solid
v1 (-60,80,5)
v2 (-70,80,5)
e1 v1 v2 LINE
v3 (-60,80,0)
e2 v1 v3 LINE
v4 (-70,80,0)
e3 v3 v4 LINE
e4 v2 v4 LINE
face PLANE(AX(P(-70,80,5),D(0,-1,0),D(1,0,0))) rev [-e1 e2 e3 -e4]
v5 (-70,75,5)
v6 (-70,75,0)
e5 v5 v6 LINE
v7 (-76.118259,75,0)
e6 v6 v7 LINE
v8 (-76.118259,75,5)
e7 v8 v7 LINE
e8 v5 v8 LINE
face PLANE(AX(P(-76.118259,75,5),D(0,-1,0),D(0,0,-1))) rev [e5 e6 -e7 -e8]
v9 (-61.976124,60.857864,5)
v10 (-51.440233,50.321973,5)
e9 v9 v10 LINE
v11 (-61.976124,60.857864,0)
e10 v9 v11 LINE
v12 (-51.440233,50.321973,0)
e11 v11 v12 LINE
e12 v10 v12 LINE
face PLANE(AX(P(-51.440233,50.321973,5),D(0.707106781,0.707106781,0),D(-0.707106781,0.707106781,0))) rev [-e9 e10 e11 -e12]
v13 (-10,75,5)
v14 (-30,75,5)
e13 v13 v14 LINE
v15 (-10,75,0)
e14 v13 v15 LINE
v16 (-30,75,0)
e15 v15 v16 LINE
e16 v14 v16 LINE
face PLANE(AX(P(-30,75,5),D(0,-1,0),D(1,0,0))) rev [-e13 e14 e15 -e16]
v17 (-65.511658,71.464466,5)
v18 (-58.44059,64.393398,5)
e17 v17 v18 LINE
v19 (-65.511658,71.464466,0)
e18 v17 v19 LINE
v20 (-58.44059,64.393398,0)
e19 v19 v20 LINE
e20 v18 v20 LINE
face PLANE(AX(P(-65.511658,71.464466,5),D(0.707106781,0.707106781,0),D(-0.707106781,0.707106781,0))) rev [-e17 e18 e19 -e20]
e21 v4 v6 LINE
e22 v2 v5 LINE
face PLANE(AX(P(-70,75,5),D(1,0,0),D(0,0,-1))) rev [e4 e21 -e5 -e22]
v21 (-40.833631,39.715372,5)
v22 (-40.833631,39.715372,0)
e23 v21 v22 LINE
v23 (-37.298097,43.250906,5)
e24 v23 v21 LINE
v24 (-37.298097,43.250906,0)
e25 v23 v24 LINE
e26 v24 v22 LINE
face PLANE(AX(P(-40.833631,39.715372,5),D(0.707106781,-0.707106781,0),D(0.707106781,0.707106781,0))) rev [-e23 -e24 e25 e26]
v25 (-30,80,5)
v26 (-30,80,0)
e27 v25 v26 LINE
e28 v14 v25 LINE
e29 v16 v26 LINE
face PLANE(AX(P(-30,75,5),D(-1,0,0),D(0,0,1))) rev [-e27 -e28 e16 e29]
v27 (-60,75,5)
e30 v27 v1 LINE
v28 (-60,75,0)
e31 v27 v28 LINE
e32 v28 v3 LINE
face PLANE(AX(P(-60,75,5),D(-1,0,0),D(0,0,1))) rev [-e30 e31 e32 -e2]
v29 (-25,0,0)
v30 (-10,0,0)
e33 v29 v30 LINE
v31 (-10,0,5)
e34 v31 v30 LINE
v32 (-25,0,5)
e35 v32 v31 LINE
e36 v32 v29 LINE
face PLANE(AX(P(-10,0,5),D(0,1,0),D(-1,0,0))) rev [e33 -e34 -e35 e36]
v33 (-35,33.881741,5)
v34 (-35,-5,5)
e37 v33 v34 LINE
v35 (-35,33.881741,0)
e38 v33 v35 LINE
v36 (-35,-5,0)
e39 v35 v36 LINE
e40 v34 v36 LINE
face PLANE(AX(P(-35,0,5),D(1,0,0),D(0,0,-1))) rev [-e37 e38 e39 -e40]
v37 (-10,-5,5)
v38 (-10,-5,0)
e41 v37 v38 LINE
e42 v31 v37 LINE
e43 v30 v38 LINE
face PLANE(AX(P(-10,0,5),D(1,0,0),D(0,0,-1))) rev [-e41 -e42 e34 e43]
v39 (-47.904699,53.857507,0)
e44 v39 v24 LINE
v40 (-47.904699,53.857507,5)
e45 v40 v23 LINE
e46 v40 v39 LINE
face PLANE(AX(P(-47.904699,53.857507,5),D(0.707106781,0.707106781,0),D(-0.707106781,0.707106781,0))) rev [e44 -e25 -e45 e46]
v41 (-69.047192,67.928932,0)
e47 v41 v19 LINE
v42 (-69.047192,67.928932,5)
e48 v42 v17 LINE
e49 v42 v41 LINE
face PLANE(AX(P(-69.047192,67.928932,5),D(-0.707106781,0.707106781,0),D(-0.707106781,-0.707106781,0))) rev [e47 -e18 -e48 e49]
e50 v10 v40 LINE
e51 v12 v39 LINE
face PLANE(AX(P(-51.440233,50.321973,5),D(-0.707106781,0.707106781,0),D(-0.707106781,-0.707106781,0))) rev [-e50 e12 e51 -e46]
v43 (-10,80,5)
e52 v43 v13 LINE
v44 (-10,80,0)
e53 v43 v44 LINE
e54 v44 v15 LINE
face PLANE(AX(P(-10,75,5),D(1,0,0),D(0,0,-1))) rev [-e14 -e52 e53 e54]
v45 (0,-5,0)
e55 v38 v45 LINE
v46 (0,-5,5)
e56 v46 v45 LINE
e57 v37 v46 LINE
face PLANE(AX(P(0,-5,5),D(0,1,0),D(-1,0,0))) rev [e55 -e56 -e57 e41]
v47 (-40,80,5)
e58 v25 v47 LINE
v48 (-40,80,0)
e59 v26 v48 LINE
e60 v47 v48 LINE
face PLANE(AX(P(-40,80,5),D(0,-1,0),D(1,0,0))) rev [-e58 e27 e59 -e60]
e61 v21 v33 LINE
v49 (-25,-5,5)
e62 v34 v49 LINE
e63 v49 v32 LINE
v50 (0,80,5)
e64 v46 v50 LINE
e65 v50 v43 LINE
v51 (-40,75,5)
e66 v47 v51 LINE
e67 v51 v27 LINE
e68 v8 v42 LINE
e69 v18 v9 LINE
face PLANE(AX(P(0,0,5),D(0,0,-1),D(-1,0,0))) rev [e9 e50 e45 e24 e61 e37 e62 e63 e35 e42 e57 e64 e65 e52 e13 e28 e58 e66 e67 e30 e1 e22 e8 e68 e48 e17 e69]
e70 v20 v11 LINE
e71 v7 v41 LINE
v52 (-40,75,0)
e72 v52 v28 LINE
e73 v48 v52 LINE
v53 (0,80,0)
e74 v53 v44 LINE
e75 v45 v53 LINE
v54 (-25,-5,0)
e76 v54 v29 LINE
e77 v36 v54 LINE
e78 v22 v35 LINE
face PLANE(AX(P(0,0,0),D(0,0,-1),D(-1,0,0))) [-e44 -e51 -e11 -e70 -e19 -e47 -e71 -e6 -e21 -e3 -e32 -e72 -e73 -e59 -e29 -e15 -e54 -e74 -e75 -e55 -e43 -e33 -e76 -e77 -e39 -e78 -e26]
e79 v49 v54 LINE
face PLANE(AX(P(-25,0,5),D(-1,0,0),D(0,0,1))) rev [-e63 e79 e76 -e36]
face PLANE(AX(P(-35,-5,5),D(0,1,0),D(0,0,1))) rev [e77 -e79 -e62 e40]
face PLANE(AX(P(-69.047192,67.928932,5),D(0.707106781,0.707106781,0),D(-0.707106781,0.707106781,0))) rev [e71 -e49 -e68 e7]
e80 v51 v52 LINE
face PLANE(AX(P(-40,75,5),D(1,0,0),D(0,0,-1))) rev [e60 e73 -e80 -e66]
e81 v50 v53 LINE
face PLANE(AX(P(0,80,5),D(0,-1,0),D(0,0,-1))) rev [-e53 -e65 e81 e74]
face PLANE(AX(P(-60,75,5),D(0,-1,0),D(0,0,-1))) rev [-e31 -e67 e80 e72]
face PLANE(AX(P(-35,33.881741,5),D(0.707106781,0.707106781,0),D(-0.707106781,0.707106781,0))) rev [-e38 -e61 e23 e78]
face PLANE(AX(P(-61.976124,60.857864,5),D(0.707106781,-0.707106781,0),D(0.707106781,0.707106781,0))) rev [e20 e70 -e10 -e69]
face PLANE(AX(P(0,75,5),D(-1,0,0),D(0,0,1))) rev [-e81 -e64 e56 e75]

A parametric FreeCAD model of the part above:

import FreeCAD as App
import Part
import Sketcher

V = App.Vector
Q = App.Units.Quantity


def add_polygon(sketch, points):
    """Adds a closed chain of lines whose ends are joined by coincident constraints."""
    first, n = sketch.GeometryCount, len(points)
    for a, b in zip(points, points[1:] + points[:1]):
        sketch.addGeometry(Part.LineSegment(App.Vector(*a, 0), App.Vector(*b, 0)), False)
    for i in range(n):
        sketch.addConstraint(Sketcher.Constraint("Coincident", first + i, 2, first + (i + 1) % n, 1))

doc = App.newDocument("Part")
body = doc.addObject("PartDesign::Body", "Body")

sketch1 = body.newObject("Sketcher::SketchObject", "Sketch")
sketch1.AttachmentSupport = (doc.getObject("XY_Plane"), [""])
sketch1.MapMode = "FlatFace"
add_polygon(sketch1, [(-41, 40), (-35, 34), (-35, -5), (-25, -5), (-25, 0), (-10, 0), (-10, -5), (0, -5), (0, 80), (-10, 80), (-10, 75), (-30, 75), (-30, 80), (-40, 80), (-40, 75), (-60, 75), (-60, 80), (-70, 80), (-70, 75), (-76, 75), (-69, 68), (-66, 71), (-58, 64), (-62, 61), (-51, 50), (-48, 54), (-37, 43)])
sketch1.addConstraint(Sketcher.Constraint("Vertical", 1))
sketch1.addConstraint(Sketcher.Constraint("Horizontal", 2))
sketch1.addConstraint(Sketcher.Constraint("Vertical", 3))
sketch1.addConstraint(Sketcher.Constraint("Horizontal", 4))
sketch1.addConstraint(Sketcher.Constraint("Vertical", 5))
sketch1.addConstraint(Sketcher.Constraint("Horizontal", 6))
sketch1.addConstraint(Sketcher.Constraint("Vertical", 7))
sketch1.addConstraint(Sketcher.Constraint("Horizontal", 8))
sketch1.addConstraint(Sketcher.Constraint("Vertical", 9))
sketch1.addConstraint(Sketcher.Constraint("Horizontal", 10))
sketch1.addConstraint(Sketcher.Constraint("Vertical", 11))
sketch1.addConstraint(Sketcher.Constraint("Horizontal", 12))
sketch1.addConstraint(Sketcher.Constraint("Vertical", 13))
sketch1.addConstraint(Sketcher.Constraint("Horizontal", 14))
sketch1.addConstraint(Sketcher.Constraint("Vertical", 15))
sketch1.addConstraint(Sketcher.Constraint("Horizontal", 16))
sketch1.addConstraint(Sketcher.Constraint("Vertical", 17))
sketch1.addConstraint(Sketcher.Constraint("Horizontal", 18))
sketch1.addConstraint(Sketcher.Constraint("PointOnObject", 3, 2, -1))
sketch1.addConstraint(Sketcher.Constraint("PointOnObject", 6, 2, -2))
sketch1.addConstraint(Sketcher.Constraint("Parallel", 0, 19))
sketch1.addConstraint(Sketcher.Constraint("Perpendicular", 19, 20))
sketch1.addConstraint(Sketcher.Constraint("Perpendicular", 20, 21))
sketch1.addConstraint(Sketcher.Constraint("Perpendicular", 21, 22))
sketch1.addConstraint(Sketcher.Constraint("Perpendicular", 22, 23))
sketch1.addConstraint(Sketcher.Constraint("Perpendicular", 23, 24))
sketch1.addConstraint(Sketcher.Constraint("Perpendicular", 24, 25))
sketch1.addConstraint(Sketcher.Constraint("Perpendicular", 25, 26))
sketch1.addConstraint(Sketcher.Constraint("Horizontal", 2, 2, 5, 2))
sketch1.addConstraint(Sketcher.Constraint("Horizontal", 8, 2, 11, 2))
sketch1.addConstraint(Sketcher.Constraint("Horizontal", 10, 2, 13, 2))
sketch1.addConstraint(Sketcher.Constraint("Horizontal", 12, 2, 15, 2))
sketch1.addConstraint(Sketcher.Constraint("Horizontal", 14, 2, 17, 2))
sketch1.addConstraint(Sketcher.Constraint("Vertical", 5, 2, 8, 2))
sketch1.addConstraint(Sketcher.Constraint("Equal", 2, 6))
sketch1.addConstraint(Sketcher.Constraint("Equal", 8, 12))
sketch1.addConstraint(Sketcher.Constraint("Equal", 10, 14))
sketch1.addConstraint(Sketcher.Constraint("Equal", 12, 16))
sketch1.addConstraint(Sketcher.Constraint("Equal", 5, 9))
sketch1.addConstraint(Sketcher.Constraint("Equal", 19, 21))
sketch1.addConstraint(Sketcher.Constraint("Equal", 20, 22))
sketch1.addConstraint(Sketcher.Constraint("Equal", 22, 24))
sketch1.addConstraint(Sketcher.Constraint("Equal", 24, 26))
sketch1.addConstraint(Sketcher.Constraint("DistanceX", 2, 1, 2, 2, 10.0))
sketch1.addConstraint(Sketcher.Constraint("DistanceX", 4, 1, 4, 2, 15.0))
sketch1.addConstraint(Sketcher.Constraint("DistanceX", 10, 2, 10, 1, 20.0))
sketch1.addConstraint(Sketcher.Constraint("DistanceY", 3, 1, 3, 2, 5.0))
sketch1.addConstraint(Sketcher.Constraint("DistanceY", 7, 1, 7, 2, 85.0))
sketch1.addConstraint(Sketcher.Constraint("Angle", 0, Q("-45 deg")))
sketch1.addConstraint(Sketcher.Constraint("Distance", 19, 10.0))
sketch1.addConstraint(Sketcher.Constraint("Distance", 20, 5.0))
sketch1.addConstraint(Sketcher.Constraint("Distance", 25, 15.0))
sketch1.addConstraint(Sketcher.Constraint("Distance", 23, 14.9))
sketch1.addConstraint(Sketcher.Constraint("Distance", 0, 8.25))
pad1 = body.newObject("PartDesign::Pad", "Pad")
pad1.Profile = sketch1
pad1.Length = 5

doc.recompute()
